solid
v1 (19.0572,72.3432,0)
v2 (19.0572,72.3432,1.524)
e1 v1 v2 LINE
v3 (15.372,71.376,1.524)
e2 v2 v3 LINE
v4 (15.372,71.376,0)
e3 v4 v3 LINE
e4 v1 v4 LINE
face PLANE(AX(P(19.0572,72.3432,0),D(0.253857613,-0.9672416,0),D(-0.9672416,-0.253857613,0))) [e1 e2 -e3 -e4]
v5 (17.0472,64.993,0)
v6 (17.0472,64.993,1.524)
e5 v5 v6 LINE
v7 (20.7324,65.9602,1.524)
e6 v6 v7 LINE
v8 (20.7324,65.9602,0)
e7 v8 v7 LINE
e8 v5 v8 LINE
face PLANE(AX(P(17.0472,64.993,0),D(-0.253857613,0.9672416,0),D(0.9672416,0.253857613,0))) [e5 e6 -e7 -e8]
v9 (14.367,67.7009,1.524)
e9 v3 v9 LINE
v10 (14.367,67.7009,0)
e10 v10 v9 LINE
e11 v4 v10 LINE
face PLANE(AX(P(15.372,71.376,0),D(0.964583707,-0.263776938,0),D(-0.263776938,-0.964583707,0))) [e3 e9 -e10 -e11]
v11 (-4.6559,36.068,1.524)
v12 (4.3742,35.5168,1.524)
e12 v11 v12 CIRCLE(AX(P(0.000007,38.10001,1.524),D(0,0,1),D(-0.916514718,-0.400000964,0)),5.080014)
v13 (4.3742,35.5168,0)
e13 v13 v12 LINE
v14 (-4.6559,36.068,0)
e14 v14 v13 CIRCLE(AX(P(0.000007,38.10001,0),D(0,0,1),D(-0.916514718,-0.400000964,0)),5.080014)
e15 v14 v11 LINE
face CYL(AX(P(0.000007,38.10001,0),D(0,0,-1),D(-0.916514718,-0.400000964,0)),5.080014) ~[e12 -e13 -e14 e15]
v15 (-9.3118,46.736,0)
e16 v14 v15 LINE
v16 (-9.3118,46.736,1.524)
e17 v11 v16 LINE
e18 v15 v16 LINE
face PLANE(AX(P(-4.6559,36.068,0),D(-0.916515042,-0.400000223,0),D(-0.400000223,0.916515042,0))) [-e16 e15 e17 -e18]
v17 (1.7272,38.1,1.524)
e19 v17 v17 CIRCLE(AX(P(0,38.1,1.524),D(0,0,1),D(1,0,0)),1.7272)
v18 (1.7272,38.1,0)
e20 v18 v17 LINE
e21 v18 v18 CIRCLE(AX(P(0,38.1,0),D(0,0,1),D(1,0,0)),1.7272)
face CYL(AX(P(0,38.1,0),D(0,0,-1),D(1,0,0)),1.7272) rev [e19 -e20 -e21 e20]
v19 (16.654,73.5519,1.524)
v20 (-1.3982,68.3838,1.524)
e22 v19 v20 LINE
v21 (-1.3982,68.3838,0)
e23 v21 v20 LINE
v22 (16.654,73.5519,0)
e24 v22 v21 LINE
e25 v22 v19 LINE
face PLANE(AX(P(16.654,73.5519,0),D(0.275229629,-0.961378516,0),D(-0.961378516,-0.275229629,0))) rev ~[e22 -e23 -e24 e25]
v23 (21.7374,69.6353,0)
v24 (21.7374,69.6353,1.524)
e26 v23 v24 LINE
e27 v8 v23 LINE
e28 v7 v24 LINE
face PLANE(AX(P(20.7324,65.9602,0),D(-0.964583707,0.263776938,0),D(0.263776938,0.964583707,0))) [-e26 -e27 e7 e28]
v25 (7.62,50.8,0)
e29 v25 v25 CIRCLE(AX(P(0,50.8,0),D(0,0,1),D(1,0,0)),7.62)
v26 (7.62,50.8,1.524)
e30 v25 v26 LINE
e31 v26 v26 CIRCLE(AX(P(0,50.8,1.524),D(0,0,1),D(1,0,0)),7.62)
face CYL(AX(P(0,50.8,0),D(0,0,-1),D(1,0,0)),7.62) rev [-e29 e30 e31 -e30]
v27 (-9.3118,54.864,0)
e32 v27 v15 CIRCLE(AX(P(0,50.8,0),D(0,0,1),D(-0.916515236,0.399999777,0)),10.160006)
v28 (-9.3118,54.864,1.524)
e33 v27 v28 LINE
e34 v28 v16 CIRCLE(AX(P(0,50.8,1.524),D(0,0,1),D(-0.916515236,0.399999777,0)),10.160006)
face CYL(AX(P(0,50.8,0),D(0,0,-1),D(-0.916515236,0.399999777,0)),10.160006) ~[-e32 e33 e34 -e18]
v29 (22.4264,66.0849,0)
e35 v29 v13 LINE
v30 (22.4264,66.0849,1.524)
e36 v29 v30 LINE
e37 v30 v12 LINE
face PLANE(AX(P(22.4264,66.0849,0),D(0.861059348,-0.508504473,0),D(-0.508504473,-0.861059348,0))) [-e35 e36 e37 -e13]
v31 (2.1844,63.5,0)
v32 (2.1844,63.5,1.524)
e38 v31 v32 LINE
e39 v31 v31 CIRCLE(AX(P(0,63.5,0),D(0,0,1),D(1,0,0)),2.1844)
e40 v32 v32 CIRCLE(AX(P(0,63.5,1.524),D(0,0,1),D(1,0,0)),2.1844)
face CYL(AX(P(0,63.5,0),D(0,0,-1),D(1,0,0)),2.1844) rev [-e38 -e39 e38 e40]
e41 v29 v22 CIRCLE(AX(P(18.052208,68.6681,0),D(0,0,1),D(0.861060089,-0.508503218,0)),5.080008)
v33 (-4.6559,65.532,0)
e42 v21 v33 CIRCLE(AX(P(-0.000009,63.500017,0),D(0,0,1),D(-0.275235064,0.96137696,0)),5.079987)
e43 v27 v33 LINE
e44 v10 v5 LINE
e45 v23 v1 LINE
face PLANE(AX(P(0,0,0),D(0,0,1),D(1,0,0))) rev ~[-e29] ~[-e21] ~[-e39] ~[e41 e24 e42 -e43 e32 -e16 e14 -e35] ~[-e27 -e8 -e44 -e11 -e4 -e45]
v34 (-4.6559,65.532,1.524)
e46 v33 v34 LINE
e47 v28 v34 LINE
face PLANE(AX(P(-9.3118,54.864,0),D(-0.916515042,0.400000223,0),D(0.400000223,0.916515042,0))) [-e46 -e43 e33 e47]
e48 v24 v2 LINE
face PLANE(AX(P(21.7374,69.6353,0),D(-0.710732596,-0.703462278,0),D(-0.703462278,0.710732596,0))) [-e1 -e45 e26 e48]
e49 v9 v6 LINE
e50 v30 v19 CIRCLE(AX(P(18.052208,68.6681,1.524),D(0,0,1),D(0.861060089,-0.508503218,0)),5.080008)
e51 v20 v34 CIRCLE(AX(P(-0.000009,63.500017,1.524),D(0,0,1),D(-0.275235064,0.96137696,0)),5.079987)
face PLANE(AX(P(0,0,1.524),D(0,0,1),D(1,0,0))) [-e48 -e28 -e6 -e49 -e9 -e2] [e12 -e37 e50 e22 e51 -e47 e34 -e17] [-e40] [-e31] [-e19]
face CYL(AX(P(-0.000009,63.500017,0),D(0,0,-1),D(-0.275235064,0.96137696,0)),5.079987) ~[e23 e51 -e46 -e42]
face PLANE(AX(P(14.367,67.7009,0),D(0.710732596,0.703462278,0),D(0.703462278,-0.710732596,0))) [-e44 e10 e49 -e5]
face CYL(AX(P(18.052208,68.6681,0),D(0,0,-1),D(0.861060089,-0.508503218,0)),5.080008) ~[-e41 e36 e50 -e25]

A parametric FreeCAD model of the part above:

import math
import FreeCAD as App
import Part
import Sketcher
Q = App.Units.Quantity


def add_polygon(sketch, points):
    """Adds a closed chain of lines whose ends are joined by coincident constraints."""
    first, n = sketch.GeometryCount, len(points)
    for a, b in zip(points, points[1:] + points[:1]):
        sketch.addGeometry(Part.LineSegment(App.Vector(*a, 0), App.Vector(*b, 0)), False)
    for i in range(n):
        sketch.addConstraint(Sketcher.Constraint("Coincident", first + i, 2, first + (i + 1) % n, 1))

doc = App.newDocument("Part")
body = doc.addObject("PartDesign::Body", "Body")

# Sketch on XY plane
sketch1 = body.newObject("Sketcher::SketchObject", "Sketch")
sketch1.AttachmentSupport = (doc.getObject("XY_Plane"), [""])
sketch1.MapMode = "FlatFace"
sketch1.addGeometry(Part.LineSegment(App.Vector(4.4, 35.5, 0), App.Vector(22.4, 66.1, 0)), False)  # 0
sketch1.addGeometry(Part.ArcOfCircle(Part.Circle(App.Vector(18.1, 68.7, 0), App.Vector(0, 0, 1), 5.1), math.radians(-31), math.radians(106)), False)  # 1
sketch1.addGeometry(Part.LineSegment(App.Vector(16.7, 73.6, 0), App.Vector(-1.4, 68.4, 0)), False)  # 2
sketch1.addGeometry(Part.ArcOfCircle(Part.Circle(App.Vector(0, 63.5, 0), App.Vector(0, 0, 1), 5.1), math.radians(106), math.radians(156)), False)  # 3
sketch1.addGeometry(Part.LineSegment(App.Vector(-4.7, 65.5, 0), App.Vector(-9.3, 54.9, 0)), False)  # 4
sketch1.addGeometry(Part.ArcOfCircle(Part.Circle(App.Vector(0, 50.8, 0), App.Vector(0, 0, 1), 10.2), math.radians(156), math.radians(204)), False)  # 5
sketch1.addGeometry(Part.LineSegment(App.Vector(-9.3, 46.7, 0), App.Vector(-4.7, 36.1, 0)), False)  # 6
sketch1.addGeometry(Part.ArcOfCircle(Part.Circle(App.Vector(0, 38.1, 0), App.Vector(0, 0, 1), 5.1), math.radians(-156), math.radians(-31)), False)  # 7
sketch1.addGeometry(Part.Circle(App.Vector(0, 38.1, 0), App.Vector(0, 0, 1), 1.7), False)  # 8
sketch1.addGeometry(Part.Circle(App.Vector(0, 50.8, 0), App.Vector(0, 0, 1), 7.6), False)  # 9
sketch1.addGeometry(Part.Circle(App.Vector(0, 63.5, 0), App.Vector(0, 0, 1), 2.2), False)  # 10
add_polygon(sketch1, [(21.7, 69.6), (20.7, 66), (17, 65), (14.4, 67.7), (15.4, 71.4), (19.1, 72.3)])  # lines 11-16
sketch1.addConstraint(Sketcher.Constraint("Tangent", 0, 2, 1, 1))
sketch1.addConstraint(Sketcher.Constraint("Tangent", 1, 2, 2, 1))
sketch1.addConstraint(Sketcher.Constraint("Tangent", 2, 2, 3, 1))
sketch1.addConstraint(Sketcher.Constraint("Tangent", 3, 2, 4, 1))
sketch1.addConstraint(Sketcher.Constraint("Tangent", 4, 2, 5, 1))
sketch1.addConstraint(Sketcher.Constraint("Tangent", 5, 2, 6, 1))
sketch1.addConstraint(Sketcher.Constraint("Tangent", 6, 2, 7, 1))
sketch1.addConstraint(Sketcher.Constraint("Tangent", 7, 2, 0, 1))
sketch1.addConstraint(Sketcher.Constraint("Coincident", 8, 3, 7, 3))
sketch1.addConstraint(Sketcher.Constraint("Coincident", 9, 3, 5, 3))
sketch1.addConstraint(Sketcher.Constraint("Coincident", 10, 3, 3, 3))
sketch1.addConstraint(Sketcher.Constraint("Equal", 1, 3))
sketch1.addConstraint(Sketcher.Constraint("Equal", 3, 7))
sketch1.addConstraint(Sketcher.Constraint("PointOnObject", 3, 3, -2))
sketch1.addConstraint(Sketcher.Constraint("PointOnObject", 5, 3, -2))
sketch1.addConstraint(Sketcher.Constraint("PointOnObject", 7, 3, -2))
sketch1.addConstraint(Sketcher.Constraint("Parallel", 11, 14))
sketch1.addConstraint(Sketcher.Constraint("Parallel", 12, 15))
sketch1.addConstraint(Sketcher.Constraint("Parallel", 13, 16))
sketch1.addConstraint(Sketcher.Constraint("Vertical", 4, 2, 5, 2))
sketch1.addConstraint(Sketcher.Constraint("Equal", 11, 12))
sketch1.addConstraint(Sketcher.Constraint("Equal", 12, 13))
sketch1.addConstraint(Sketcher.Constraint("Equal", 13, 14))
sketch1.addConstraint(Sketcher.Constraint("Diameter", 9, Q("0.6 in")))
sketch1.addConstraint(Sketcher.Constraint("Radius", 1, Q("0.2 in")))
sketch1.addConstraint(Sketcher.Constraint("Radius", 5, Q("0.4 in")))
sketch1.addConstraint(Sketcher.Constraint("Diameter", 8, Q("0.136 in")))
sketch1.addConstraint(Sketcher.Constraint("Diameter", 10, Q("0.172 in")))
sketch1.addConstraint(Sketcher.Constraint("DistanceY", -1, 1, 5, 3, Q("2 in")))
sketch1.addConstraint(Sketcher.Constraint("DistanceY", 7, 3, 3, 3, Q("1 in")))
sketch1.addConstraint(Sketcher.Constraint("Distance", 11, Q("0.15 in")))
sketch1.addConstraint(Sketcher.Constraint("DistanceY", 12, 2, 0, 2, Q("0.043 in")))
sketch1.addConstraint(Sketcher.Constraint("DistanceY", -1, 1, 7, 2, Q("1.3983 in")))
sketch1.addConstraint(Sketcher.Constraint("DistanceY", -1, 1, 13, 2, Q("2.6654 in")))
sketch1.addConstraint(Sketcher.Constraint("DistanceX", -1, 1, 14, 2, Q("0.6052 in")))
sketch1.addConstraint(Sketcher.Constraint("DistanceX", -1, 1, 16, 2, Q("0.8558 in")))
sketch1.addConstraint(Sketcher.Constraint("DistanceX", 11, 2, 0, 2, Q("0.0667 in")))
sketch1.addConstraint(Sketcher.Constraint("DistanceY", 11, 2, 0, 2, Q("0.0049 in")))
pad1 = body.newObject("PartDesign::Pad", "Pad")
pad1.Profile = sketch1
pad1.Length = Q("0.06 in")

doc.recompute()
